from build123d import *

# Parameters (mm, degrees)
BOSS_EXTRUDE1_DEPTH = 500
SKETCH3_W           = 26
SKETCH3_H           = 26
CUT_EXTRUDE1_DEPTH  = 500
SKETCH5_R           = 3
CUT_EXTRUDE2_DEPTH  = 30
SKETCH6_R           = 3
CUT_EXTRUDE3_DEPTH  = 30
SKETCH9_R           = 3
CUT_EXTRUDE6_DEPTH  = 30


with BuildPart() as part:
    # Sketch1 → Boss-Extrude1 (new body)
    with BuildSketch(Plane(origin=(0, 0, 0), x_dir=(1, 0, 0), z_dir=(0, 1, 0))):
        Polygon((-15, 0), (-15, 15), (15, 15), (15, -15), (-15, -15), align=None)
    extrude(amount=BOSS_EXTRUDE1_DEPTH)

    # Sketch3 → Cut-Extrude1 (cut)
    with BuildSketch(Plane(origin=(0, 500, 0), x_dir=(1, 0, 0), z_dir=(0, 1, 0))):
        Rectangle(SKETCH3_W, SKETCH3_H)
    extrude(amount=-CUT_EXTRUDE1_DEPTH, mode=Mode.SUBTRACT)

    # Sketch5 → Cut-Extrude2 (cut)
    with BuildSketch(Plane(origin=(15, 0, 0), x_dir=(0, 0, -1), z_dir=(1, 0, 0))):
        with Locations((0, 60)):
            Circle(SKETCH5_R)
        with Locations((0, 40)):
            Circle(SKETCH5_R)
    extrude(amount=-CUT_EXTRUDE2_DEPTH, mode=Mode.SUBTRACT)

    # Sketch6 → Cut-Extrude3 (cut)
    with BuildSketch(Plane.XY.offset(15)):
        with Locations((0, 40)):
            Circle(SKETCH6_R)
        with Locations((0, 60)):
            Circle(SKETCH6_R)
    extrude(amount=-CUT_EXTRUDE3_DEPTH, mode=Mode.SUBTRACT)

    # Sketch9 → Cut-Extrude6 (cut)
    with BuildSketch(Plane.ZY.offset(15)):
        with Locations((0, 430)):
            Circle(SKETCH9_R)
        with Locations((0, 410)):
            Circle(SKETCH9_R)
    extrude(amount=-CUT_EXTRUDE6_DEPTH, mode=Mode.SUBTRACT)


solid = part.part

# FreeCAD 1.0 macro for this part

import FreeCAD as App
import Part
import Sketcher
Q = App.Units.Quantity

doc = App.newDocument("Part")
body = doc.addObject("PartDesign::Body", "Body")

sketch1 = body.newObject("Sketcher::SketchObject", "Sketch")
sketch1.AttachmentSupport = (doc.getObject("XZ_Plane"), [""])
sketch1.MapMode = "FlatFace"
sketch1.addGeometry([
    Part.LineSegment(App.Vector(-15, -15, 0), App.Vector(-15, 15, 0)),
    Part.LineSegment(App.Vector(-15, 15, 0), App.Vector(15, 15, 0)),
    Part.LineSegment(App.Vector(15, 15, 0), App.Vector(15, -15, 0)),
    Part.LineSegment(App.Vector(15, -15, 0), App.Vector(-15, -15, 0)),
], False)
sketch1.addConstraint([
    Sketcher.Constraint("Coincident", 0, 2, 1, 1),
    Sketcher.Constraint("Coincident", 1, 2, 2, 1),
    Sketcher.Constraint("Coincident", 2, 2, 3, 1),
    Sketcher.Constraint("Coincident", 3, 2, 0, 1),
    Sketcher.Constraint("Vertical", 0),
    Sketcher.Constraint("Horizontal", 1),
    Sketcher.Constraint("Vertical", 2),
    Sketcher.Constraint("Horizontal", 3),
    Sketcher.Constraint("Symmetric", 0, 2, 2, 2, -1, 1),
    Sketcher.Constraint("Equal", 3, 0),
    Sketcher.Constraint("DistanceX", 1, 1, 1, 2, Q("30 mm")),
])
pad1 = body.newObject("PartDesign::Pad", "Pad")
pad1.Profile = sketch1
pad1.Length = 500
pad1.Reversed = True

sketch2 = body.newObject("Sketcher::SketchObject", "Sketch001")
sketch2.AttachmentSupport = (doc.getObject("XZ_Plane"), [""])
sketch2.MapMode = "FlatFace"
sketch2.AttachmentOffset = App.Placement(App.Vector(0, 0, -500), App.Rotation())
sketch2.addGeometry([
    Part.LineSegment(App.Vector(-13, -13, 0), App.Vector(-13, 13, 0)),
    Part.LineSegment(App.Vector(-13, 13, 0), App.Vector(13, 13, 0)),
    Part.LineSegment(App.Vector(13, 13, 0), App.Vector(13, -13, 0)),
    Part.LineSegment(App.Vector(13, -13, 0), App.Vector(-13, -13, 0)),
], False)
sketch2.addConstraint([
    Sketcher.Constraint("Coincident", 0, 2, 1, 1),
    Sketcher.Constraint("Coincident", 1, 2, 2, 1),
    Sketcher.Constraint("Coincident", 2, 2, 3, 1),
    Sketcher.Constraint("Coincident", 3, 2, 0, 1),
    Sketcher.Constraint("Vertical", 0),
    Sketcher.Constraint("Horizontal", 1),
    Sketcher.Constraint("Vertical", 2),
    Sketcher.Constraint("Horizontal", 3),
    Sketcher.Constraint("Symmetric", 0, 2, 2, 2, -1, 1),
    Sketcher.Constraint("Equal", 3, 0),
    Sketcher.Constraint("DistanceX", 1, 1, 1, 2, Q("26 mm")),
])
pocket1 = body.newObject("PartDesign::Pocket", "Pocket")
pocket1.Profile = sketch2
pocket1.Length = 500
pocket1.Reversed = True

sketch3 = body.newObject("Sketcher::SketchObject", "Sketch002")
sketch3.AttachmentSupport = (doc.getObject("YZ_Plane"), [""])
sketch3.MapMode = "FlatFace"
sketch3.AttachmentOffset = App.Placement(App.Vector(0, 0, 15), App.Rotation())
sketch3.addGeometry([
    Part.Circle(App.Vector(60, 0, 0), App.Vector(0, 0, 1), 3),
    Part.Circle(App.Vector(40, 0, 0), App.Vector(0, 0, 1), 3),
], False)
sketch3.addConstraint([
    Sketcher.Constraint("Equal", 0, 1),
    Sketcher.Constraint("PointOnObject", 0, 3, -1),
    Sketcher.Constraint("PointOnObject", 1, 3, -1),
    Sketcher.Constraint("Diameter", 0, Q("6 mm")),
    Sketcher.Constraint("DistanceX", -1, 1, 0, 3, Q("60 mm")),
    Sketcher.Constraint("DistanceX", -1, 1, 1, 3, Q("40 mm")),
])
pocket2 = body.newObject("PartDesign::Pocket", "Pocket001")
pocket2.Profile = sketch3
pocket2.Length = 30

sketch4 = body.newObject("Sketcher::SketchObject", "Sketch003")
sketch4.AttachmentSupport = (doc.getObject("XY_Plane"), [""])
sketch4.MapMode = "FlatFace"
sketch4.AttachmentOffset = App.Placement(App.Vector(0, 0, 15), App.Rotation())
sketch4.addGeometry([
    Part.Circle(App.Vector(0, 40, 0), App.Vector(0, 0, 1), 3),
    Part.Circle(App.Vector(0, 60, 0), App.Vector(0, 0, 1), 3),
], False)
sketch4.addConstraint([
    Sketcher.Constraint("Equal", 0, 1),
    Sketcher.Constraint("PointOnObject", 0, 3, -2),
    Sketcher.Constraint("PointOnObject", 1, 3, -2),
    Sketcher.Constraint("Diameter", 0, Q("6 mm")),
    Sketcher.Constraint("DistanceY", -1, 1, 0, 3, Q("40 mm")),
    Sketcher.Constraint("DistanceY", -1, 1, 1, 3, Q("60 mm")),
])
pocket3 = body.newObject("PartDesign::Pocket", "Pocket002")
pocket3.Profile = sketch4
pocket3.Length = 30

sketch5 = body.newObject("Sketcher::SketchObject", "Sketch004")
sketch5.AttachmentSupport = (doc.getObject("YZ_Plane"), [""])
sketch5.MapMode = "FlatFace"
sketch5.AttachmentOffset = App.Placement(App.Vector(0, 0, -15), App.Rotation())
sketch5.addGeometry([
    Part.Circle(App.Vector(430, 0, 0), App.Vector(0, 0, 1), 3),
    Part.Circle(App.Vector(410, 0, 0), App.Vector(0, 0, 1), 3),
], False)
sketch5.addConstraint([
    Sketcher.Constraint("Equal", 0, 1),
    Sketcher.Constraint("PointOnObject", 0, 3, -1),
    Sketcher.Constraint("PointOnObject", 1, 3, -1),
    Sketcher.Constraint("Diameter", 0, Q("6 mm")),
    Sketcher.Constraint("DistanceX", -1, 1, 0, 3, Q("430 mm")),
    Sketcher.Constraint("DistanceX", -1, 1, 1, 3, Q("410 mm")),
])
pocket4 = body.newObject("PartDesign::Pocket", "Pocket003")
pocket4.Profile = sketch5
pocket4.Length = 30
pocket4.Reversed = True

doc.recompute()
